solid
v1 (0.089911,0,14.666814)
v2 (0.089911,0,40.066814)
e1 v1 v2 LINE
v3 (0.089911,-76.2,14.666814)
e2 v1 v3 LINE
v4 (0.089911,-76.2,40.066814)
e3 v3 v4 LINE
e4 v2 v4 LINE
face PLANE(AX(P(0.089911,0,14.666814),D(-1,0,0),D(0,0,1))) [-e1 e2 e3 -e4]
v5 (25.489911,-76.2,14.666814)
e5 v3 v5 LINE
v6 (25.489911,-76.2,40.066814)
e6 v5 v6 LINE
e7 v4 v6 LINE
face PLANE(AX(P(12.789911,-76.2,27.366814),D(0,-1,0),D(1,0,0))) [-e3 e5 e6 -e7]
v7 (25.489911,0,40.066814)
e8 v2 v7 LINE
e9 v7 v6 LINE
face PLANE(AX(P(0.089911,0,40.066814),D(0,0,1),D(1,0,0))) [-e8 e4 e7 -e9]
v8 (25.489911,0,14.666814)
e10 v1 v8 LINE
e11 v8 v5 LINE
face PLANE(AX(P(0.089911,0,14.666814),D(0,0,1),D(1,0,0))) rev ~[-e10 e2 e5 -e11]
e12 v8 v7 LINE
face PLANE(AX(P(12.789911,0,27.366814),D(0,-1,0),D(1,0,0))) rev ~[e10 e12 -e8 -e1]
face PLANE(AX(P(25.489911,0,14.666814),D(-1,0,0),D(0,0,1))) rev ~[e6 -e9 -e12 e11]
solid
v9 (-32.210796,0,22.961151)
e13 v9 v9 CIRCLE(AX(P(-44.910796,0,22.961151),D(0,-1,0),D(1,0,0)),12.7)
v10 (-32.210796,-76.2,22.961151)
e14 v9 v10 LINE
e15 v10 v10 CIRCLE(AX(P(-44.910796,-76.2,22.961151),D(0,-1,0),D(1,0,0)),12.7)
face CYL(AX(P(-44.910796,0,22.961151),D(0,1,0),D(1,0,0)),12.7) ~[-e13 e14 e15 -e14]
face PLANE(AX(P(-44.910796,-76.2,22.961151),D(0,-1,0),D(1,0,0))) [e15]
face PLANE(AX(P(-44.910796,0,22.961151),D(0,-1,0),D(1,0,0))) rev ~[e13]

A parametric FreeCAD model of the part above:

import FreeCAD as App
import Part
import Sketcher
Q = App.Units.Quantity

doc = App.newDocument("Part")
body = doc.addObject("PartDesign::Body", "Body")
body.AllowCompound = True

# Sketch on XZ plane
sketch1 = doc.addObject("Sketcher::SketchObject", "Sketch")
body.addObject(sketch1)
sketch1.AttachmentSupport = (doc.XZ_Plane, [""])
sketch1.MapMode = "FlatFace"
sketch1.addGeometry([
    Part.Circle(App.Vector(-45, 23, 0), App.Vector(0, 0, 1), 13),  # 0
    Part.LineSegment(App.Vector(0, 40, 0), App.Vector(0, 15, 0)),  # 1
    Part.LineSegment(App.Vector(0, 15, 0), App.Vector(25, 15, 0)),  # 2
    Part.LineSegment(App.Vector(25, 15, 0), App.Vector(25, 40, 0)),  # 3
    Part.LineSegment(App.Vector(25, 40, 0), App.Vector(0, 40, 0)),  # 4
], False)
sketch1.addConstraint([
    Sketcher.Constraint("Coincident", 1, 2, 2, 1),
    Sketcher.Constraint("Coincident", 2, 2, 3, 1),
    Sketcher.Constraint("Coincident", 3, 2, 4, 1),
    Sketcher.Constraint("Coincident", 4, 2, 1, 1),
    Sketcher.Constraint("Vertical", 1),
    Sketcher.Constraint("Horizontal", 2),
    Sketcher.Constraint("Vertical", 3),
    Sketcher.Constraint("Horizontal", 4),
    Sketcher.Constraint("Equal", 4, 1),
    Sketcher.Constraint("Diameter", 0, Q("1 in")),
    Sketcher.Constraint("DistanceX", 2, 1, 2, 2, Q("1 in")),
    Sketcher.Constraint("DistanceY", -1, 1, 0, 3, Q("22.961151 mm")),
    Sketcher.Constraint("DistanceX", -1, 1, 1, 2, Q("0.089911 mm")),
    Sketcher.Constraint("DistanceX", 0, 3, -1, 1, Q("44.910796 mm")),
    Sketcher.Constraint("DistanceY", -1, 1, 1, 2, Q("14.666814 mm")),
])
pad1 = doc.addObject("PartDesign::Pad", "Pad")
body.addObject(pad1)
pad1.Profile = sketch1
pad1.Length = Q("3 in")

doc.recompute()
